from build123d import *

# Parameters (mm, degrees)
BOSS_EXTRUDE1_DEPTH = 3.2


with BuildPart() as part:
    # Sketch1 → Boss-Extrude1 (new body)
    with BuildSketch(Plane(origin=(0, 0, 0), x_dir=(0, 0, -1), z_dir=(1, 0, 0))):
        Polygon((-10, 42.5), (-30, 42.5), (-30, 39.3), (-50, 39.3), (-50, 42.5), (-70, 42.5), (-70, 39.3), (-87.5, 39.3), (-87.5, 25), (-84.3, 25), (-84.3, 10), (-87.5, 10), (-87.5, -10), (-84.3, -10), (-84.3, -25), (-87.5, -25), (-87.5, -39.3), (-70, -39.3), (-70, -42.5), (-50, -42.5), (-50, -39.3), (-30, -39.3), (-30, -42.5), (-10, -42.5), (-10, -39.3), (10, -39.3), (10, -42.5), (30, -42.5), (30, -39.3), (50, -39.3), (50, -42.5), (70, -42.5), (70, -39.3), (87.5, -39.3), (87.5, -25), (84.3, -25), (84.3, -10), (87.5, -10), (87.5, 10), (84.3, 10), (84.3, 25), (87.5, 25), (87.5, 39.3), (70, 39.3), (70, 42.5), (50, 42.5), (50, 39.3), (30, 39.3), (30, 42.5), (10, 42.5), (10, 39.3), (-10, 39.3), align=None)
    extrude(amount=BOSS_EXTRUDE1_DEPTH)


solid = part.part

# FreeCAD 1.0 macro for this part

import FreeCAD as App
import Part
import Sketcher

V = App.Vector
Q = App.Units.Quantity

doc = App.newDocument("Part")
params = doc.addObject("Spreadsheet::Sheet", "Params")
for row, (alias, value) in enumerate([
    ("sketch1_width", "15 mm"),
    ("sketch1_width2", "20 mm"),
    ("sketch1_width3", "3.2 mm"),
    ("sketch1_width4", "14.3 mm"),
    ("sketch1_height", "17.5 mm"),
    ("pad1_length", "3.2 mm"),
], start=1):
    params.set(f"A{row}", alias)
    params.set(f"B{row}", "=" + value)
    params.setAlias(f"B{row}", alias)

body = doc.addObject("PartDesign::Body", "Body")

# Sketch on YZ plane
sketch1 = body.newObject("Sketcher::SketchObject", "Sketch")
sketch1.AttachmentSupport = (doc.getObject("YZ_Plane"), [""])
sketch1.MapMode = "FlatFace"
sketch1.addGeometry([
    Part.LineSegment(V(42.5, 10, 0), V(42.5, 30, 0)),  # 0
    Part.LineSegment(V(42.5, 30, 0), V(39.3, 30, 0)),  # 1
    Part.LineSegment(V(39.3, 30, 0), V(39.3, 50, 0)),  # 2
    Part.LineSegment(V(39.3, 50, 0), V(42.5, 50, 0)),  # 3
    Part.LineSegment(V(42.5, 50, 0), V(42.5, 70, 0)),  # 4
    Part.LineSegment(V(42.5, 70, 0), V(39.3, 70, 0)),  # 5
    Part.LineSegment(V(39.3, 70, 0), V(39.3, 87.5, 0)),  # 6
    Part.LineSegment(V(39.3, 87.5, 0), V(25, 87.5, 0)),  # 7
    Part.LineSegment(V(25, 87.5, 0), V(25, 84.3, 0)),  # 8
    Part.LineSegment(V(25, 84.3, 0), V(10, 84.3, 0)),  # 9
    Part.LineSegment(V(10, 84.3, 0), V(10, 87.5, 0)),  # 10
    Part.LineSegment(V(10, 87.5, 0), V(-10, 87.5, 0)),  # 11
    Part.LineSegment(V(-10, 87.5, 0), V(-10, 84.3, 0)),  # 12
    Part.LineSegment(V(-10, 84.3, 0), V(-25, 84.3, 0)),  # 13
    Part.LineSegment(V(-25, 84.3, 0), V(-25, 87.5, 0)),  # 14
    Part.LineSegment(V(-25, 87.5, 0), V(-39.3, 87.5, 0)),  # 15
    Part.LineSegment(V(-39.3, 87.5, 0), V(-39.3, 70, 0)),  # 16
    Part.LineSegment(V(-39.3, 70, 0), V(-42.5, 70, 0)),  # 17
    Part.LineSegment(V(-42.5, 70, 0), V(-42.5, 50, 0)),  # 18
    Part.LineSegment(V(-42.5, 50, 0), V(-39.3, 50, 0)),  # 19
    Part.LineSegment(V(-39.3, 50, 0), V(-39.3, 30, 0)),  # 20
    Part.LineSegment(V(-39.3, 30, 0), V(-42.5, 30, 0)),  # 21
    Part.LineSegment(V(-42.5, 30, 0), V(-42.5, 10, 0)),  # 22
    Part.LineSegment(V(-42.5, 10, 0), V(-39.3, 10, 0)),  # 23
    Part.LineSegment(V(-39.3, 10, 0), V(-39.3, -10, 0)),  # 24
    Part.LineSegment(V(-39.3, -10, 0), V(-42.5, -10, 0)),  # 25
    Part.LineSegment(V(-42.5, -10, 0), V(-42.5, -30, 0)),  # 26
    Part.LineSegment(V(-42.5, -30, 0), V(-39.3, -30, 0)),  # 27
    Part.LineSegment(V(-39.3, -30, 0), V(-39.3, -50, 0)),  # 28
    Part.LineSegment(V(-39.3, -50, 0), V(-42.5, -50, 0)),  # 29
    Part.LineSegment(V(-42.5, -50, 0), V(-42.5, -70, 0)),  # 30
    Part.LineSegment(V(-42.5, -70, 0), V(-39.3, -70, 0)),  # 31
    Part.LineSegment(V(-39.3, -70, 0), V(-39.3, -87.5, 0)),  # 32
    Part.LineSegment(V(-39.3, -87.5, 0), V(-25, -87.5, 0)),  # 33
    Part.LineSegment(V(-25, -87.5, 0), V(-25, -84.3, 0)),  # 34
    Part.LineSegment(V(-25, -84.3, 0), V(-10, -84.3, 0)),  # 35
    Part.LineSegment(V(-10, -84.3, 0), V(-10, -87.5, 0)),  # 36
    Part.LineSegment(V(-10, -87.5, 0), V(10, -87.5, 0)),  # 37
    Part.LineSegment(V(10, -87.5, 0), V(10, -84.3, 0)),  # 38
    Part.LineSegment(V(10, -84.3, 0), V(25, -84.3, 0)),  # 39
    Part.LineSegment(V(25, -84.3, 0), V(25, -87.5, 0)),  # 40
    Part.LineSegment(V(25, -87.5, 0), V(39.3, -87.5, 0)),  # 41
    Part.LineSegment(V(39.3, -87.5, 0), V(39.3, -70, 0)),  # 42
    Part.LineSegment(V(39.3, -70, 0), V(42.5, -70, 0)),  # 43
    Part.LineSegment(V(42.5, -70, 0), V(42.5, -50, 0)),  # 44
    Part.LineSegment(V(42.5, -50, 0), V(39.3, -50, 0)),  # 45
    Part.LineSegment(V(39.3, -50, 0), V(39.3, -30, 0)),  # 46
    Part.LineSegment(V(39.3, -30, 0), V(42.5, -30, 0)),  # 47
    Part.LineSegment(V(42.5, -30, 0), V(42.5, -10, 0)),  # 48
    Part.LineSegment(V(42.5, -10, 0), V(39.3, -10, 0)),  # 49
    Part.LineSegment(V(39.3, -10, 0), V(39.3, 10, 0)),  # 50
    Part.LineSegment(V(39.3, 10, 0), V(42.5, 10, 0)),  # 51
], False)
sketch1.addConstraint([
    Sketcher.Constraint("Coincident", 0, 2, 1, 1),
    Sketcher.Constraint("Coincident", 1, 2, 2, 1),
    Sketcher.Constraint("Coincident", 2, 2, 3, 1),
    Sketcher.Constraint("Coincident", 3, 2, 4, 1),
    Sketcher.Constraint("Coincident", 4, 2, 5, 1),
    Sketcher.Constraint("Coincident", 5, 2, 6, 1),
    Sketcher.Constraint("Coincident", 6, 2, 7, 1),
    Sketcher.Constraint("Coincident", 7, 2, 8, 1),
    Sketcher.Constraint("Coincident", 8, 2, 9, 1),
    Sketcher.Constraint("Coincident", 9, 2, 10, 1),
    Sketcher.Constraint("Coincident", 10, 2, 11, 1),
    Sketcher.Constraint("Coincident", 11, 2, 12, 1),
    Sketcher.Constraint("Coincident", 12, 2, 13, 1),
    Sketcher.Constraint("Coincident", 13, 2, 14, 1),
    Sketcher.Constraint("Coincident", 14, 2, 15, 1),
    Sketcher.Constraint("Coincident", 15, 2, 16, 1),
    Sketcher.Constraint("Coincident", 16, 2, 17, 1),
    Sketcher.Constraint("Coincident", 17, 2, 18, 1),
    Sketcher.Constraint("Coincident", 18, 2, 19, 1),
    Sketcher.Constraint("Coincident", 19, 2, 20, 1),
    Sketcher.Constraint("Coincident", 20, 2, 21, 1),
    Sketcher.Constraint("Coincident", 21, 2, 22, 1),
    Sketcher.Constraint("Coincident", 22, 2, 23, 1),
    Sketcher.Constraint("Coincident", 23, 2, 24, 1),
    Sketcher.Constraint("Coincident", 24, 2, 25, 1),
    Sketcher.Constraint("Coincident", 25, 2, 26, 1),
    Sketcher.Constraint("Coincident", 26, 2, 27, 1),
    Sketcher.Constraint("Coincident", 27, 2, 28, 1),
    Sketcher.Constraint("Coincident", 28, 2, 29, 1),
    Sketcher.Constraint("Coincident", 29, 2, 30, 1),
    Sketcher.Constraint("Coincident", 30, 2, 31, 1),
    Sketcher.Constraint("Coincident", 31, 2, 32, 1),
    Sketcher.Constraint("Coincident", 32, 2, 33, 1),
    Sketcher.Constraint("Coincident", 33, 2, 34, 1),
    Sketcher.Constraint("Coincident", 34, 2, 35, 1),
    Sketcher.Constraint("Coincident", 35, 2, 36, 1),
    Sketcher.Constraint("Coincident", 36, 2, 37, 1),
    Sketcher.Constraint("Coincident", 37, 2, 38, 1),
    Sketcher.Constraint("Coincident", 38, 2, 39, 1),
    Sketcher.Constraint("Coincident", 39, 2, 40, 1),
    Sketcher.Constraint("Coincident", 40, 2, 41, 1),
    Sketcher.Constraint("Coincident", 41, 2, 42, 1),
    Sketcher.Constraint("Coincident", 42, 2, 43, 1),
    Sketcher.Constraint("Coincident", 43, 2, 44, 1),
    Sketcher.Constraint("Coincident", 44, 2, 45, 1),
    Sketcher.Constraint("Coincident", 45, 2, 46, 1),
    Sketcher.Constraint("Coincident", 46, 2, 47, 1),
    Sketcher.Constraint("Coincident", 47, 2, 48, 1),
    Sketcher.Constraint("Coincident", 48, 2, 49, 1),
    Sketcher.Constraint("Coincident", 49, 2, 50, 1),
    Sketcher.Constraint("Coincident", 50, 2, 51, 1),
    Sketcher.Constraint("Coincident", 51, 2, 0, 1),
    Sketcher.Constraint("Vertical", 0),
    Sketcher.Constraint("Horizontal", 1),
    Sketcher.Constraint("Vertical", 2),
    Sketcher.Constraint("Horizontal", 3),
    Sketcher.Constraint("Vertical", 4),
    Sketcher.Constraint("Horizontal", 5),
    Sketcher.Constraint("Vertical", 6),
    Sketcher.Constraint("Horizontal", 7),
    Sketcher.Constraint("Vertical", 8),
    Sketcher.Constraint("Horizontal", 9),
    Sketcher.Constraint("Vertical", 10),
    Sketcher.Constraint("Horizontal", 11),
    Sketcher.Constraint("Vertical", 12),
    Sketcher.Constraint("Horizontal", 13),
    Sketcher.Constraint("Vertical", 14),
    Sketcher.Constraint("Horizontal", 15),
    Sketcher.Constraint("Vertical", 16),
    Sketcher.Constraint("Horizontal", 17),
    Sketcher.Constraint("Vertical", 18),
    Sketcher.Constraint("Horizontal", 19),
    Sketcher.Constraint("Vertical", 20),
    Sketcher.Constraint("Horizontal", 21),
    Sketcher.Constraint("Vertical", 22),
    Sketcher.Constraint("Horizontal", 23),
    Sketcher.Constraint("Vertical", 24),
    Sketcher.Constraint("Horizontal", 25),
    Sketcher.Constraint("Vertical", 26),
    Sketcher.Constraint("Horizontal", 27),
    Sketcher.Constraint("Vertical", 28),
    Sketcher.Constraint("Horizontal", 29),
    Sketcher.Constraint("Vertical", 30),
    Sketcher.Constraint("Horizontal", 31),
    Sketcher.Constraint("Vertical", 32),
    Sketcher.Constraint("Horizontal", 33),
    Sketcher.Constraint("Vertical", 34),
    Sketcher.Constraint("Horizontal", 35),
    Sketcher.Constraint("Vertical", 36),
    Sketcher.Constraint("Horizontal", 37),
    Sketcher.Constraint("Vertical", 38),
    Sketcher.Constraint("Horizontal", 39),
    Sketcher.Constraint("Vertical", 40),
    Sketcher.Constraint("Horizontal", 41),
    Sketcher.Constraint("Vertical", 42),
    Sketcher.Constraint("Horizontal", 43),
    Sketcher.Constraint("Vertical", 44),
    Sketcher.Constraint("Horizontal", 45),
    Sketcher.Constraint("Vertical", 46),
    Sketcher.Constraint("Horizontal", 47),
    Sketcher.Constraint("Vertical", 48),
    Sketcher.Constraint("Horizontal", 49),
    Sketcher.Constraint("Vertical", 50),
    Sketcher.Constraint("Horizontal", 51),
    Sketcher.Constraint("Symmetric", 0, 2, 26, 2, -1, 1),
    Sketcher.Constraint("Symmetric", 2, 2, 28, 2, -1, 1),
    Sketcher.Constraint("Symmetric", 4, 2, 30, 2, -1, 1),
    Sketcher.Constraint("Symmetric", 6, 2, 32, 2, -1, 1),
    Sketcher.Constraint("Symmetric", 8, 2, 34, 2, -1, 1),
    Sketcher.Constraint("Symmetric", 10, 2, 36, 2, -1, 1),
    Sketcher.Constraint("Symmetric", 12, 2, 38, 2, -1, 1),
    Sketcher.Constraint("Symmetric", 14, 2, 40, 2, -1, 1),
    Sketcher.Constraint("Symmetric", 16, 2, 42, 2, -1, 1),
    Sketcher.Constraint("Symmetric", 18, 2, 44, 2, -1, 1),
    Sketcher.Constraint("Symmetric", 20, 2, 46, 2, -1, 1),
    Sketcher.Constraint("Symmetric", 22, 2, 48, 2, -1, 1),
    Sketcher.Constraint("Symmetric", 24, 2, 50, 2, -1, 1),
    Sketcher.Constraint("Symmetric", 9, 2, 12, 2, -2),
    Sketcher.Constraint("Symmetric", 7, 2, 14, 2, -2),
    Sketcher.Constraint("Symmetric", 5, 2, 16, 2, -2),
    Sketcher.Constraint("Symmetric", 3, 2, 18, 2, -2),
    Sketcher.Constraint("Symmetric", 1, 2, 20, 2, -2),
    Sketcher.Constraint("Symmetric", 25, 2, 48, 2, -2),
    Sketcher.Constraint("Horizontal", 7, 2, 10, 2),
    Sketcher.Constraint("Vertical", 0, 2, 3, 2),
    Sketcher.Constraint("Vertical", 2, 2, 5, 2),
    Sketcher.Constraint("Vertical", 20, 2, 23, 2),
    Sketcher.Constraint("Equal", 37, 0),
    Sketcher.Constraint("Equal", 0, 2),
    Sketcher.Constraint("Equal", 2, 4),
    Sketcher.Constraint("Equal", 51, 8),
    Sketcher.Constraint("Equal", 22, 24),
    Sketcher.Constraint("DistanceX", 9, 2, 9, 1, Q("15 mm")),
    Sketcher.Constraint("DistanceX", 11, 2, 11, 1, Q("20 mm")),
    Sketcher.Constraint("DistanceX", 1, 2, 1, 1, Q("3.2 mm")),
    Sketcher.Constraint("DistanceX", 7, 2, 7, 1, Q("14.3 mm")),
    Sketcher.Constraint("DistanceY", 6, 1, 6, 2, Q("17.5 mm")),
])
sketch1.setExpression("Constraints[132]", "Params.sketch1_width")
sketch1.setExpression("Constraints[133]", "Params.sketch1_width2")
sketch1.setExpression("Constraints[134]", "Params.sketch1_width3")
sketch1.setExpression("Constraints[135]", "Params.sketch1_width4")
sketch1.setExpression("Constraints[136]", "Params.sketch1_height")
pad1 = body.newObject("PartDesign::Pad", "Pad")
pad1.Profile = sketch1
pad1.setExpression("Length", "Params.pad1_length")

doc.recompute()
